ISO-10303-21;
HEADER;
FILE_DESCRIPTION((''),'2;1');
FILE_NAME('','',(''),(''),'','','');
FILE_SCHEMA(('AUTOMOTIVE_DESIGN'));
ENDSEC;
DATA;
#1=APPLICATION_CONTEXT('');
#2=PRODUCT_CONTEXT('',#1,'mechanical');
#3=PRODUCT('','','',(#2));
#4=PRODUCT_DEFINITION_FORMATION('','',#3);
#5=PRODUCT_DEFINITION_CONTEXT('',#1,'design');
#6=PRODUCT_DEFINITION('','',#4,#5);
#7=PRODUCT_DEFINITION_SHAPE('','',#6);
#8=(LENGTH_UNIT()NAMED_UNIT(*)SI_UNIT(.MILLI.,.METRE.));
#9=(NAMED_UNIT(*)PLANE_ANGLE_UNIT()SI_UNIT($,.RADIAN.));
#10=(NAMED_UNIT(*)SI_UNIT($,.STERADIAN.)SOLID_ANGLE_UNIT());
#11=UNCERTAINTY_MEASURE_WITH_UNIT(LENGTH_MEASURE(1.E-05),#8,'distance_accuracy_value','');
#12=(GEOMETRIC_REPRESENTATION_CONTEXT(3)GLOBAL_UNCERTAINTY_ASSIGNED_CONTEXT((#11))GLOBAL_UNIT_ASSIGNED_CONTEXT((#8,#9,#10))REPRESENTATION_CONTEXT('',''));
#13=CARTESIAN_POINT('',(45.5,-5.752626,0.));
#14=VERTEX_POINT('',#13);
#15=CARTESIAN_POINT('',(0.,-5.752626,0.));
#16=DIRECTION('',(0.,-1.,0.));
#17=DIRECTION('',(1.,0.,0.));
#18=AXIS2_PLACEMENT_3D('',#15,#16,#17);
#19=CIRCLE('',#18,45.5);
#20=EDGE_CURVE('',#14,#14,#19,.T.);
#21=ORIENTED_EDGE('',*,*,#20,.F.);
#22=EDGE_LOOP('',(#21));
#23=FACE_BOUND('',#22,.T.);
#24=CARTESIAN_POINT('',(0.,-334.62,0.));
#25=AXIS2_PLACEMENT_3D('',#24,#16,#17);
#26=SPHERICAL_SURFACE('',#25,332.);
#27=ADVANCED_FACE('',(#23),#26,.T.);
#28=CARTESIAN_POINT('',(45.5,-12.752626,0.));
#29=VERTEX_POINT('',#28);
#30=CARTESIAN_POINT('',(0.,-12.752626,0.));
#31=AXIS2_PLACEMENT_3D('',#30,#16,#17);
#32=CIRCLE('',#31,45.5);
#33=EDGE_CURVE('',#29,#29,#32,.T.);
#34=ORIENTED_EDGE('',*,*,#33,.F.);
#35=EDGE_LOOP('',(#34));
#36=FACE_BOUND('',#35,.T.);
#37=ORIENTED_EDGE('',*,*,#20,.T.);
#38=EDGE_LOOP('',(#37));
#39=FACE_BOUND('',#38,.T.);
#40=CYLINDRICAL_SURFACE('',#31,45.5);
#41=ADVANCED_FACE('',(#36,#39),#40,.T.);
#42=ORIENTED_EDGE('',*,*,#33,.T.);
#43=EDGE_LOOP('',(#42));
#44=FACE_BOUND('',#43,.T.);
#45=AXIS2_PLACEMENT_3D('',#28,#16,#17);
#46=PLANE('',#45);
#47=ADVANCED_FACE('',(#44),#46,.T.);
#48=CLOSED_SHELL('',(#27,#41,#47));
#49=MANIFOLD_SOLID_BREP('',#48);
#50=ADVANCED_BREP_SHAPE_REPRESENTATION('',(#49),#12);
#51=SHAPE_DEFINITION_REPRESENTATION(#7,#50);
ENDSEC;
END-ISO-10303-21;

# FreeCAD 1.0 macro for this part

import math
import FreeCAD as App
import Part
import Sketcher
from FreeCAD import Vector

doc = App.newDocument("Part")
body = doc.addObject("PartDesign::Body", "Body")

# Sketch on XY plane
sketch1 = body.newObject("Sketcher::SketchObject", "Sketch")
sketch1.AttachmentSupport = (doc.getObject("XY_Plane"), [""])
sketch1.MapMode = "FlatFace"
sketch1.addGeometry([
    Part.LineSegment(Vector(46, -13, 0), Vector(46, -6, 0)),
    Part.ArcOfCircle(Part.Circle(Vector(0, -335, 0), Vector(0, 0, 1), 332), math.radians(82.12), math.radians(90)),
    Part.LineSegment(Vector(0, -3, 0), Vector(0, -13, 0)),
    Part.LineSegment(Vector(0, -13, 0), Vector(46, -13, 0)),
], False)
sketch1.addConstraint([
    Sketcher.Constraint("Coincident", 0, 2, 1, 1),
    Sketcher.Constraint("Coincident", 1, 2, 2, 1),
    Sketcher.Constraint("Coincident", 2, 2, 3, 1),
    Sketcher.Constraint("Coincident", 3, 2, 0, 1),
    Sketcher.Constraint("Vertical", 0),
    Sketcher.Constraint("Vertical", 2),
    Sketcher.Constraint("Horizontal", 3),
    Sketcher.Constraint("PointOnObject", 1, 3, -2),
    Sketcher.Constraint("PointOnObject", 2, 2, -2),
    Sketcher.Constraint("Radius", 1, 332.0),
    Sketcher.Constraint("DistanceY", 0, 1, 0, 2, 7.0),
    Sketcher.Constraint("DistanceX", 3, 1, 3, 2, 45.5),
    Sketcher.Constraint("DistanceY", 1, 3, -1, 1, 334.62),
])
revolution = body.newObject("PartDesign::Revolution", "Revolution")
revolution.Profile = sketch1
revolution.ReferenceAxis = (sketch1, ["V_Axis"])
revolution.Angle = 360

doc.recompute()
